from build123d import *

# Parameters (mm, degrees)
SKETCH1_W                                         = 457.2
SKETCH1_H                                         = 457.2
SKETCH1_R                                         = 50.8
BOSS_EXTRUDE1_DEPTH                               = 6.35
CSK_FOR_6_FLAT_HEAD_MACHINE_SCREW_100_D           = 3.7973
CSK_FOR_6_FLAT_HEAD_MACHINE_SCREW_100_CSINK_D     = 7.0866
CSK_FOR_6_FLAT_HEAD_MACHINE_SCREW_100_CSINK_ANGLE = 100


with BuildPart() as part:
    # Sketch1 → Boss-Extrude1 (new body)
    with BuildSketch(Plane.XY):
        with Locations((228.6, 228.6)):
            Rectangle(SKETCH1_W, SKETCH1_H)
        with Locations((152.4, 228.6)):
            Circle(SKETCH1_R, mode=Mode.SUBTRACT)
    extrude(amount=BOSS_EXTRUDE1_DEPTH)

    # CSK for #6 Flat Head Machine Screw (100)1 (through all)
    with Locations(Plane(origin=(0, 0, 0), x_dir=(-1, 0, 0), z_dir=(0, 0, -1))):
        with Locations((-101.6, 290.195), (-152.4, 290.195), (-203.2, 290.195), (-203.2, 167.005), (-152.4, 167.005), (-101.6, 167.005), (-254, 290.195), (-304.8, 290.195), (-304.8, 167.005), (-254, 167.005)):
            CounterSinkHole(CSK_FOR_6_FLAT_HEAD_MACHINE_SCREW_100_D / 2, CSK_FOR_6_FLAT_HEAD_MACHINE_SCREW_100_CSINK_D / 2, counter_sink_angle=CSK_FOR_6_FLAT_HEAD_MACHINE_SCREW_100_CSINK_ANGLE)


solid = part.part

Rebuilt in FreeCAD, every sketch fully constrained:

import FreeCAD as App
import Part
import Sketcher

V = App.Vector
Q = App.Units.Quantity


def add_polygon(sketch, points):
    """Adds a closed chain of lines whose ends are joined by coincident constraints."""
    first, n = sketch.GeometryCount, len(points)
    for a, b in zip(points, points[1:] + points[:1]):
        sketch.addGeometry(Part.LineSegment(App.Vector(*a, 0), App.Vector(*b, 0)), False)
    for i in range(n):
        sketch.addConstraint(Sketcher.Constraint("Coincident", first + i, 2, first + (i + 1) % n, 1))

doc = App.newDocument("Part")
body = doc.addObject("PartDesign::Body", "Body")

sketch1 = body.newObject("Sketcher::SketchObject", "Sketch")
sketch1.AttachmentSupport = (doc.getObject("XY_Plane"), [""])
sketch1.MapMode = "FlatFace"
add_polygon(sketch1, [(0, 457), (0, 0), (457, 0), (457, 457)])
sketch1.addGeometry(Part.Circle(V(152, 229, 0), V(0, 0, 1), 51), False)
sketch1.addConstraint([
    Sketcher.Constraint("Vertical", 0),
    Sketcher.Constraint("Horizontal", 1),
    Sketcher.Constraint("Vertical", 2),
    Sketcher.Constraint("Horizontal", 3),
    Sketcher.Constraint("Coincident", 0, 2, -1, 1),
    Sketcher.Constraint("Equal", 3, 0),
    Sketcher.Constraint("Diameter", 4, Q("4 in")),
    Sketcher.Constraint("DistanceX", 1, 1, 1, 2, Q("18 in")),
    Sketcher.Constraint("DistanceX", -1, 1, 4, 3, Q("6 in")),
    Sketcher.Constraint("DistanceY", -1, 1, 4, 3, Q("9 in")),
])
pad1 = body.newObject("PartDesign::Pad", "Pad")
pad1.Profile = sketch1
pad1.Length = Q("0.25 in")

sketch2 = body.newObject("Sketcher::SketchObject", "Sketch001")
sketch2.AttachmentSupport = (doc.getObject("XY_Plane"), [""])
sketch2.MapMode = "FlatFace"
sketch2.addGeometry([
    Part.Circle(V(101.6, 290.2, 0), V(0, 0, 1), 1.9),
    Part.Circle(V(152.4, 290.2, 0), V(0, 0, 1), 1.9),
    Part.Circle(V(203.2, 290.2, 0), V(0, 0, 1), 1.9),
    Part.Circle(V(203.2, 167, 0), V(0, 0, 1), 1.9),
    Part.Circle(V(152.4, 167, 0), V(0, 0, 1), 1.9),
    Part.Circle(V(101.6, 167, 0), V(0, 0, 1), 1.9),
    Part.Circle(V(254, 290.2, 0), V(0, 0, 1), 1.9),
    Part.Circle(V(304.8, 290.2, 0), V(0, 0, 1), 1.9),
    Part.Circle(V(304.8, 167, 0), V(0, 0, 1), 1.9),
    Part.Circle(V(254, 167, 0), V(0, 0, 1), 1.9),
], False)
sketch2.addConstraint([
    Sketcher.Constraint("Equal", 0, 1),
    Sketcher.Constraint("Equal", 1, 2),
    Sketcher.Constraint("Equal", 2, 3),
    Sketcher.Constraint("Equal", 3, 4),
    Sketcher.Constraint("Equal", 4, 5),
    Sketcher.Constraint("Equal", 5, 6),
    Sketcher.Constraint("Equal", 6, 7),
    Sketcher.Constraint("Equal", 7, 8),
    Sketcher.Constraint("Equal", 8, 9),
    Sketcher.Constraint("Horizontal", 0, 3, 1, 3),
    Sketcher.Constraint("Horizontal", 1, 3, 2, 3),
    Sketcher.Constraint("Horizontal", 3, 3, 4, 3),
    Sketcher.Constraint("Horizontal", 4, 3, 5, 3),
    Sketcher.Constraint("Horizontal", 2, 3, 6, 3),
    Sketcher.Constraint("Horizontal", 6, 3, 7, 3),
    Sketcher.Constraint("Horizontal", 5, 3, 8, 3),
    Sketcher.Constraint("Horizontal", 8, 3, 9, 3),
    Sketcher.Constraint("Vertical", 2, 3, 3, 3),
    Sketcher.Constraint("Vertical", 1, 3, 4, 3),
    Sketcher.Constraint("Vertical", 0, 3, 5, 3),
    Sketcher.Constraint("Vertical", 7, 3, 8, 3),
    Sketcher.Constraint("Vertical", 6, 3, 9, 3),
    Sketcher.Constraint("DistanceX", -1, 1, 0, 3, Q("4 in")),
    Sketcher.Constraint("DistanceX", -1, 1, 1, 3, Q("6 in")),
    Sketcher.Constraint("DistanceX", -1, 1, 2, 3, Q("8 in")),
    Sketcher.Constraint("DistanceX", -1, 1, 6, 3, Q("10 in")),
    Sketcher.Constraint("DistanceX", -1, 1, 7, 3, Q("12 in")),
    Sketcher.Constraint("Diameter", 0, Q("0.1495 in")),
    Sketcher.Constraint("DistanceY", 3, 3, 2, 3, Q("4.85 in")),
    Sketcher.Constraint("DistanceY", -1, 1, 0, 3, Q("11.425 in")),
])
doc.recompute()
hole = body.newObject("PartDesign::Hole", "Hole")
hole.Profile = sketch2
hole.ThreadType = "None"
hole.Diameter = Q("0.1495 in")
hole.DepthType = "ThroughAll"
hole.HoleCutType = "Countersink"
hole.HoleCutDiameter = Q("0.279 in")
hole.HoleCutCountersinkAngle = 100
hole.Reversed = True

doc.recompute()
